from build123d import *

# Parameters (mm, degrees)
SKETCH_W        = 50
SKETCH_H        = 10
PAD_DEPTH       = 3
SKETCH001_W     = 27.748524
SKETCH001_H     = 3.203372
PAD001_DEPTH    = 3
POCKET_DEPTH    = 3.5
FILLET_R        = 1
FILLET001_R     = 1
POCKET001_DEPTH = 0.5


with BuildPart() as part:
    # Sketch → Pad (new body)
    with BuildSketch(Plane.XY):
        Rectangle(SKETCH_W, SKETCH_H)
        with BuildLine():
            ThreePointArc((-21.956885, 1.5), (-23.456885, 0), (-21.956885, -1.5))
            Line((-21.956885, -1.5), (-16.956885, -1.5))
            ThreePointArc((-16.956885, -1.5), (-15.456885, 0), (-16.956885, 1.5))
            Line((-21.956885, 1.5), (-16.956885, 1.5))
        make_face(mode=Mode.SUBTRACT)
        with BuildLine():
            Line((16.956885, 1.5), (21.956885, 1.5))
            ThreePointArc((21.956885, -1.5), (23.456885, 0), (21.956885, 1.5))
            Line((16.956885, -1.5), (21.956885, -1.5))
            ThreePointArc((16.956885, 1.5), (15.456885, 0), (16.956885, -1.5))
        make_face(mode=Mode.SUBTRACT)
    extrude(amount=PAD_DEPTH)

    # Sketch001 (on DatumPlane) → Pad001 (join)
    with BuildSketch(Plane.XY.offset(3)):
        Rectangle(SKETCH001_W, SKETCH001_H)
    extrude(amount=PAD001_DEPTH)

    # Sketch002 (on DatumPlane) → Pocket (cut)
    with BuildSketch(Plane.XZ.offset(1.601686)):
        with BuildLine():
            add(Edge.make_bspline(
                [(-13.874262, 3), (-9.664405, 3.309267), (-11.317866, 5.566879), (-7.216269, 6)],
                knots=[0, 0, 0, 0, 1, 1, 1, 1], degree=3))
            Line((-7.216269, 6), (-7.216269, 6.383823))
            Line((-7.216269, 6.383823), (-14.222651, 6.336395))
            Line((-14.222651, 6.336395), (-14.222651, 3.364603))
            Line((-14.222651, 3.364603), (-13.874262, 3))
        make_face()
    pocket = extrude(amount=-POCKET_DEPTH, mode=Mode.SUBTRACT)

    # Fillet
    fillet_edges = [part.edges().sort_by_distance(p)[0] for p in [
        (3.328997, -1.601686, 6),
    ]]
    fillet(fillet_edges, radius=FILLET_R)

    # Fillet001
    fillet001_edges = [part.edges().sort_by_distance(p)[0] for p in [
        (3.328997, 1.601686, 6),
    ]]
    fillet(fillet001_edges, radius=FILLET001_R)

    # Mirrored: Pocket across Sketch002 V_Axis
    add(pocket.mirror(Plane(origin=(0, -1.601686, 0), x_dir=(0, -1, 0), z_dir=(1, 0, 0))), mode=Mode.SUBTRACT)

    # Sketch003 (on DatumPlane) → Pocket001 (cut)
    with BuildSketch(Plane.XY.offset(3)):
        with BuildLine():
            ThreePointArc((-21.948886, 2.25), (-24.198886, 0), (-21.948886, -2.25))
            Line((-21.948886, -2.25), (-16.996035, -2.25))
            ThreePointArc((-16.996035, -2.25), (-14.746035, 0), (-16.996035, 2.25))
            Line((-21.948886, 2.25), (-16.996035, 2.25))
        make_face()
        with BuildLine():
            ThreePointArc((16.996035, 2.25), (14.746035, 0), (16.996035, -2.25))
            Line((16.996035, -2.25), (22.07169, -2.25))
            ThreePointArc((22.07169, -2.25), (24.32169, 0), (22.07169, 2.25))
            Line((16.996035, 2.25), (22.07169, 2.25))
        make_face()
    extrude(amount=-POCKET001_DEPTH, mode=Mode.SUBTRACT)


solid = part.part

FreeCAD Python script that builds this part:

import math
import FreeCAD as App
import Part
import Sketcher


def edges_at(feature, points):
    """Names of the edges that pass closest to the given points."""
    edges = feature.Shape.Edges
    near = lambda p: min(range(len(edges)), key=lambda i: edges[i].distToShape(Part.Vertex(*p))[0])
    return sorted({f"Edge{near(p) + 1}" for p in points})

doc = App.newDocument("Part")
body = doc.addObject("PartDesign::Body", "Body")

# Sketch on XY plane
sketch1 = body.newObject("Sketcher::SketchObject", "Sketch")
sketch1.AttachmentSupport = (doc.getObject("XY_Plane"), [""])
sketch1.MapMode = "FlatFace"
sketch1.addGeometry([
    Part.LineSegment(App.Vector(-25, 5, 0), App.Vector(-25, -5, 0)),  # 0
    Part.LineSegment(App.Vector(-25, -5, 0), App.Vector(25, -5, 0)),  # 1
    Part.LineSegment(App.Vector(25, -5, 0), App.Vector(25, 5, 0)),  # 2
    Part.LineSegment(App.Vector(25, 5, 0), App.Vector(-25, 5, 0)),  # 3
    Part.ArcOfCircle(Part.Circle(App.Vector(-21.956885, 0, 0), App.Vector(0, 0, 1), 1.5), math.radians(90), math.radians(270)),  # 4
    Part.LineSegment(App.Vector(-21.956885, 1.5, 0), App.Vector(-16.956885, 1.5, 0)),  # 5
    Part.ArcOfCircle(Part.Circle(App.Vector(-16.956885, 0, 0), App.Vector(0, 0, 1), 1.5), math.radians(-90), math.radians(90)),  # 6
    Part.LineSegment(App.Vector(-16.956885, -1.5, 0), App.Vector(-21.956885, -1.5, 0)),  # 7
    Part.ArcOfCircle(Part.Circle(App.Vector(16.956885, 0, 0), App.Vector(0, 0, 1), 1.5), math.radians(90), math.radians(270)),  # 8
    Part.LineSegment(App.Vector(16.956885, 1.5, 0), App.Vector(21.956885, 1.5, 0)),  # 9
    Part.ArcOfCircle(Part.Circle(App.Vector(21.956885, 0, 0), App.Vector(0, 0, 1), 1.5), math.radians(-90), math.radians(90)),  # 10
    Part.LineSegment(App.Vector(21.956885, -1.5, 0), App.Vector(16.956885, -1.5, 0)),  # 11
], False)
sketch1.addConstraint([
    Sketcher.Constraint("Coincident", 0, 2, 1, 1),
    Sketcher.Constraint("Coincident", 1, 2, 2, 1),
    Sketcher.Constraint("Coincident", 2, 2, 3, 1),
    Sketcher.Constraint("Coincident", 3, 2, 0, 1),
    Sketcher.Constraint("Tangent", 4, 1, 5, 1),
    Sketcher.Constraint("Tangent", 5, 2, 6, 2),
    Sketcher.Constraint("Tangent", 6, 1, 7, 1),
    Sketcher.Constraint("Tangent", 7, 2, 4, 2),
    Sketcher.Constraint("Tangent", 8, 1, 9, 1),
    Sketcher.Constraint("Tangent", 9, 2, 10, 2),
    Sketcher.Constraint("Tangent", 10, 1, 11, 1),
    Sketcher.Constraint("Tangent", 11, 2, 8, 2),
    Sketcher.Constraint("Vertical", 0),
    Sketcher.Constraint("Horizontal", 1),
    Sketcher.Constraint("Vertical", 2),
    Sketcher.Constraint("Horizontal", 3),
    Sketcher.Constraint("Horizontal", 5),
    Sketcher.Constraint("Horizontal", 7),
    Sketcher.Constraint("Horizontal", 9),
    Sketcher.Constraint("Horizontal", 11),
    Sketcher.Constraint("Equal", 6, 8),
    Sketcher.Constraint("Symmetric", 6, 3, 8, 3, -1, 1),
    Sketcher.Constraint("Symmetric", 0, 2, 2, 2, -1, 1),
    Sketcher.Constraint("Symmetric", 4, 3, 10, 3, -2),
    Sketcher.Constraint("Radius", 4, 1.5),
    Sketcher.Constraint("DistanceX", 1, 1, 1, 2, 50.0),
    Sketcher.Constraint("DistanceX", 5, 1, 5, 2, 5.0),
    Sketcher.Constraint("DistanceY", 0, 2, 0, 1, 10.0),
    Sketcher.Constraint("DistanceX", 6, 3, 8, 3, 33.91377),
])
pad1 = body.newObject("PartDesign::Pad", "Pad")
pad1.Profile = sketch1
pad1.Length = 3

# Sketch on XY plane
sketch2 = body.newObject("Sketcher::SketchObject", "Sketch001")
sketch2.AttachmentSupport = (doc.getObject("XY_Plane"), [""])
sketch2.MapMode = "FlatFace"
sketch2.AttachmentOffset = App.Placement(App.Vector(0, 0, 3), App.Rotation())
sketch2.addGeometry([
    Part.LineSegment(App.Vector(-13.874262, 1.601686, 0), App.Vector(-13.874262, -1.601686, 0)),
    Part.LineSegment(App.Vector(-13.874262, -1.601686, 0), App.Vector(13.874262, -1.601686, 0)),
    Part.LineSegment(App.Vector(13.874262, -1.601686, 0), App.Vector(13.874262, 1.601686, 0)),
    Part.LineSegment(App.Vector(13.874262, 1.601686, 0), App.Vector(-13.874262, 1.601686, 0)),
], False)
sketch2.addConstraint([
    Sketcher.Constraint("Coincident", 0, 2, 1, 1),
    Sketcher.Constraint("Coincident", 1, 2, 2, 1),
    Sketcher.Constraint("Coincident", 2, 2, 3, 1),
    Sketcher.Constraint("Coincident", 3, 2, 0, 1),
    Sketcher.Constraint("Vertical", 0),
    Sketcher.Constraint("Horizontal", 1),
    Sketcher.Constraint("Vertical", 2),
    Sketcher.Constraint("Horizontal", 3),
    Sketcher.Constraint("Symmetric", 0, 2, 2, 2, -1, 1),
    Sketcher.Constraint("DistanceY", 0, 2, 0, 1, 3.203372),
    Sketcher.Constraint("DistanceX", 1, 1, 1, 2, 27.748524),
])
pad2 = body.newObject("PartDesign::Pad", "Pad001")
pad2.Profile = sketch2
pad2.Length = 3

# Sketch on XZ plane
sketch3 = body.newObject("Sketcher::SketchObject", "Sketch002")
sketch3.AttachmentSupport = (doc.getObject("XZ_Plane"), [""])
sketch3.MapMode = "FlatFace"
sketch3.AttachmentOffset = App.Placement(App.Vector(0, 0, 1.601686), App.Rotation())
sketch3.addGeometry([
    Part.BSplineCurve([App.Vector(-13.874262, 3, 0), App.Vector(-9.664405, 3.309267, 0), App.Vector(-11.317866, 5.566879, 0), App.Vector(-7.216269, 6, 0)], [4, 4], [0, 1], False, 3, [1, 1, 1, 1], False),  # 0
    Part.LineSegment(App.Vector(-7.216269, 6, 0), App.Vector(-7.216269, 6.383823, 0)),  # 1
    Part.LineSegment(App.Vector(-7.216269, 6.383823, 0), App.Vector(-14.222651, 6.336395, 0)),  # 2
    Part.LineSegment(App.Vector(-14.222651, 6.336395, 0), App.Vector(-14.222651, 3.364603, 0)),  # 3
    Part.LineSegment(App.Vector(-14.222651, 3.364603, 0), App.Vector(-13.874262, 3, 0)),  # 4
], False)
sketch3.addConstraint([
    Sketcher.Constraint("Block", 0),
    Sketcher.Constraint("Coincident", 0, 2, 1, 1),
    Sketcher.Constraint("Coincident", 1, 2, 2, 1),
    Sketcher.Constraint("Coincident", 2, 2, 3, 1),
    Sketcher.Constraint("Coincident", 3, 2, 4, 1),
    Sketcher.Constraint("Coincident", 4, 2, 0, 1),
    Sketcher.Constraint("Vertical", 1),
    Sketcher.Constraint("Vertical", 3),
    Sketcher.Constraint("Distance", 4, 0.504292),
    Sketcher.Constraint("DistanceY", 1, 1, 1, 2, 0.383823),
    Sketcher.Constraint("DistanceY", 3, 2, 3, 1, 2.971792),
    Sketcher.Constraint("DistanceX", 2, 2, -1, 1, 14.222651),
])
pocket1 = body.newObject("PartDesign::Pocket", "Pocket")
pocket1.Profile = sketch3
pocket1.Length = 3.5
doc.recompute()

fillet = body.newObject("PartDesign::Fillet", "Fillet")
fillet.Base = (pocket1, edges_at(pocket1, [(3.329, -1.602, 6)]))
fillet.Radius = 1
doc.recompute()

fillet2 = body.newObject("PartDesign::Fillet", "Fillet001")
fillet2.Base = (fillet, edges_at(fillet, [(3.329, 1.602, 6)]))
fillet2.Radius = 1
doc.recompute()

mirrored = body.newObject("PartDesign::Mirrored", "Mirrored")
mirrored.Originals = [pocket1]
mirrored.MirrorPlane = (doc.getObject("YZ_Plane"), [""])
body.Tip = mirrored

# Sketch on XY plane
sketch4 = body.newObject("Sketcher::SketchObject", "Sketch003")
sketch4.AttachmentSupport = (doc.getObject("XY_Plane"), [""])
sketch4.MapMode = "FlatFace"
sketch4.AttachmentOffset = App.Placement(App.Vector(0, 0, 3), App.Rotation())
sketch4.addGeometry([
    Part.ArcOfCircle(Part.Circle(App.Vector(-21.948886, 0, 0), App.Vector(0, 0, 1), 2.25), math.radians(90), math.radians(270)),  # 0
    Part.LineSegment(App.Vector(-21.948886, -2.25, 0), App.Vector(-16.996035, -2.25, 0)),  # 1
    Part.ArcOfCircle(Part.Circle(App.Vector(-16.996035, 0, 0), App.Vector(0, 0, 1), 2.25), math.radians(-90), math.radians(90)),  # 2
    Part.LineSegment(App.Vector(-16.996035, 2.25, 0), App.Vector(-21.948886, 2.25, 0)),  # 3
    Part.ArcOfCircle(Part.Circle(App.Vector(16.996035, 0, 0), App.Vector(0, 0, 1), 2.25), math.radians(90), math.radians(270)),  # 4
    Part.LineSegment(App.Vector(16.996035, -2.25, 0), App.Vector(22.07169, -2.25, 0)),  # 5
    Part.ArcOfCircle(Part.Circle(App.Vector(22.07169, 0, 0), App.Vector(0, 0, 1), 2.25), math.radians(-90), math.radians(90)),  # 6
    Part.LineSegment(App.Vector(22.07169, 2.25, 0), App.Vector(16.996035, 2.25, 0)),  # 7
], False)
sketch4.addConstraint([
    Sketcher.Constraint("Tangent", 0, 2, 1, 1),
    Sketcher.Constraint("Tangent", 1, 2, 2, 1),
    Sketcher.Constraint("Tangent", 2, 2, 3, 1),
    Sketcher.Constraint("Tangent", 3, 2, 0, 1),
    Sketcher.Constraint("Tangent", 4, 2, 5, 1),
    Sketcher.Constraint("Tangent", 5, 2, 6, 1),
    Sketcher.Constraint("Tangent", 6, 2, 7, 1),
    Sketcher.Constraint("Tangent", 7, 2, 4, 1),
    Sketcher.Constraint("Horizontal", 1),
    Sketcher.Constraint("Horizontal", 3),
    Sketcher.Constraint("Horizontal", 5),
    Sketcher.Constraint("Horizontal", 7),
    Sketcher.Constraint("Equal", 2, 4),
    Sketcher.Constraint("Symmetric", 2, 3, 4, 3, -1, 1),
    Sketcher.Constraint("PointOnObject", 0, 3, -1),
    Sketcher.Constraint("Radius", 0, 2.25),
    Sketcher.Constraint("DistanceX", 1, 1, 1, 2, 4.952851),
    Sketcher.Constraint("DistanceX", 5, 1, 5, 2, 5.075655),
    Sketcher.Constraint("DistanceX", -1, 1, 6, 3, 22.07169),
])
pocket2 = body.newObject("PartDesign::Pocket", "Pocket001")
pocket2.Profile = sketch4
pocket2.Length = 0.5

doc.recompute()
